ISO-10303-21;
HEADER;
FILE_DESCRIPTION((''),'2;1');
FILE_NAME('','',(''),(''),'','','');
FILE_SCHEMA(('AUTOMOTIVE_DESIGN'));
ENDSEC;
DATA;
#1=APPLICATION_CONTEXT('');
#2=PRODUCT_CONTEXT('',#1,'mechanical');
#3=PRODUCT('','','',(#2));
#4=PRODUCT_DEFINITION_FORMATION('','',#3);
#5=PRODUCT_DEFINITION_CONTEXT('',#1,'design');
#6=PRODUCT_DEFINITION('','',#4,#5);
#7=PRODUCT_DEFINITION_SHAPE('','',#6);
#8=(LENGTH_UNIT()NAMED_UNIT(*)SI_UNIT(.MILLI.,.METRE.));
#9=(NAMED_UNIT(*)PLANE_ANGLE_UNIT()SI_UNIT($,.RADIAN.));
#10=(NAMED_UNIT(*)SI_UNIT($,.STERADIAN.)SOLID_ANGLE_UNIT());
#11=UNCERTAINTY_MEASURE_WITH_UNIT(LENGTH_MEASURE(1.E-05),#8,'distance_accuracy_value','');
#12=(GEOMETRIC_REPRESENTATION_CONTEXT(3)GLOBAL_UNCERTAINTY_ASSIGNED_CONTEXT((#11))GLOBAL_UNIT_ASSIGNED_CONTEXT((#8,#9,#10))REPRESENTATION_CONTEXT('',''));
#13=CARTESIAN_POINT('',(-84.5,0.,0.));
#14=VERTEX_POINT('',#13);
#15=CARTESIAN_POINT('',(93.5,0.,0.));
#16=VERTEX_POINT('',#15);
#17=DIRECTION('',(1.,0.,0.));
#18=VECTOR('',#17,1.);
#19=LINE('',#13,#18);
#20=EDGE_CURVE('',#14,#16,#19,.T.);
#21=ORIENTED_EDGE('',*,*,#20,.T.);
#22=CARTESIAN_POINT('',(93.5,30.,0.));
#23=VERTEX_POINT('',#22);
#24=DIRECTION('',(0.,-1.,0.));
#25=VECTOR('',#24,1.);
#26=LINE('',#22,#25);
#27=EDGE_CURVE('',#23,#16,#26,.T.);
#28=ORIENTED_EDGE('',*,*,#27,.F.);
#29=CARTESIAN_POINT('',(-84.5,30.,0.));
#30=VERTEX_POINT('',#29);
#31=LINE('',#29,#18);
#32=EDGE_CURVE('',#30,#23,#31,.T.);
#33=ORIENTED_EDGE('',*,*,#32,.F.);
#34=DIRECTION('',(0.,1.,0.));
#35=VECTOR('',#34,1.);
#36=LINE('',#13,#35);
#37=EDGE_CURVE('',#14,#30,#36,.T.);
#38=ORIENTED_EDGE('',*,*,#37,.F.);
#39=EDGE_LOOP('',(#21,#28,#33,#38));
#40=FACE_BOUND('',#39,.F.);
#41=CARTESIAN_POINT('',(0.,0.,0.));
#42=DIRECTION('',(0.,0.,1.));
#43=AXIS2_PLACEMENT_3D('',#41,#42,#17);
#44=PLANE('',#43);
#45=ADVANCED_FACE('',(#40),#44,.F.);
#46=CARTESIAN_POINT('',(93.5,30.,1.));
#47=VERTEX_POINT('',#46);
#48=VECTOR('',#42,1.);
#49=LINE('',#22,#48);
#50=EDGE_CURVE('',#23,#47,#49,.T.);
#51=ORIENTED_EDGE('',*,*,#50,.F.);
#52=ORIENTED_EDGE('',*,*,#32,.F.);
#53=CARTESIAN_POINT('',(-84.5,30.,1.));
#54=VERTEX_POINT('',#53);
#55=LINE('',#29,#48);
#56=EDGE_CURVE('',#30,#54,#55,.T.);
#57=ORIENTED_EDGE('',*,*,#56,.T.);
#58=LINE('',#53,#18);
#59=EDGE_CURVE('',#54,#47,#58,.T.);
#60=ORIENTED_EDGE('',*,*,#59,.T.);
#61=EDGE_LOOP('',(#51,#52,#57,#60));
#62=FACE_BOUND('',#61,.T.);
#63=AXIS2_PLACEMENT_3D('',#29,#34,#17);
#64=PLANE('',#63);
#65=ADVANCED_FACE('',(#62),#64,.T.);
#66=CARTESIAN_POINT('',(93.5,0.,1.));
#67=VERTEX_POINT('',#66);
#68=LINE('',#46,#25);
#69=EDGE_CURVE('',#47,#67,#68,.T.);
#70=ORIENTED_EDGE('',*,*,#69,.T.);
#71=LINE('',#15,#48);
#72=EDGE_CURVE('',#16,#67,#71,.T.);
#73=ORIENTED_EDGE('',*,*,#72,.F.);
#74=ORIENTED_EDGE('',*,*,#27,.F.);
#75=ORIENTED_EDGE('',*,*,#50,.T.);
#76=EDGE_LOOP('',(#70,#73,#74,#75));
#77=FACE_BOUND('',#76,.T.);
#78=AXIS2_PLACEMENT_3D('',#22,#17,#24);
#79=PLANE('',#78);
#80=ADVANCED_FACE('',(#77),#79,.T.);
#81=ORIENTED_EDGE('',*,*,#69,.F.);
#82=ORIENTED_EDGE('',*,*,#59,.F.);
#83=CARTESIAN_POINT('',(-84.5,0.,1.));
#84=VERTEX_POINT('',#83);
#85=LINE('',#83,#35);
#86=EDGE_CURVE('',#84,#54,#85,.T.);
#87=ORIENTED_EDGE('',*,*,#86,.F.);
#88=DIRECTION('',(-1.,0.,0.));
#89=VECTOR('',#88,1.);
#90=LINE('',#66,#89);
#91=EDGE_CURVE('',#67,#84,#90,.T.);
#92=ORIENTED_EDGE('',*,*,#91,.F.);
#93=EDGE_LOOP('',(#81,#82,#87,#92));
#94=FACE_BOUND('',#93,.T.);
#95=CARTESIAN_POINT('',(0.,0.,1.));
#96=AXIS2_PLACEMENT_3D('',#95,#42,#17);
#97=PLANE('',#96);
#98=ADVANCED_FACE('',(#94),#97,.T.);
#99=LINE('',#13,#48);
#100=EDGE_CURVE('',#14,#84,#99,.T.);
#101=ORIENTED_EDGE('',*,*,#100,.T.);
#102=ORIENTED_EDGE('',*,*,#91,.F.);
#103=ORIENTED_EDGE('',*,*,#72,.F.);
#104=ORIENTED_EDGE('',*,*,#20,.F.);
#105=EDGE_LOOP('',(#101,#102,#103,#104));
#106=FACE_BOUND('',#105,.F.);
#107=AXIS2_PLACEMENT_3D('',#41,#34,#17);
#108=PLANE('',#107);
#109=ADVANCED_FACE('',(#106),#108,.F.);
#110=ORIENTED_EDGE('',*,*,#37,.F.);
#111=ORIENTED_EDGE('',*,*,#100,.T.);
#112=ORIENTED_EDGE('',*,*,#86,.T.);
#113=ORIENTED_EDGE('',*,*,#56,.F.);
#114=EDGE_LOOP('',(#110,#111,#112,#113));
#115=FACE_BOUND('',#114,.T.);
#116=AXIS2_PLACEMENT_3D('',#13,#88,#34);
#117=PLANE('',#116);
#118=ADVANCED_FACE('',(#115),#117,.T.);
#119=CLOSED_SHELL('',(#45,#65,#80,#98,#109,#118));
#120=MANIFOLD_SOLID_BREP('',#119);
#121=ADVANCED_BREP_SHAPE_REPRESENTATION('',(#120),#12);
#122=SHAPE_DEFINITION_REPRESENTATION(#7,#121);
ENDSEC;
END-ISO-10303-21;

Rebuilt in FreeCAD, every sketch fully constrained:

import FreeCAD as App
import Part
import Sketcher

V = App.Vector


def add_polygon(sketch, points):
    """Adds a closed chain of lines whose ends are joined by coincident constraints."""
    first, n = sketch.GeometryCount, len(points)
    for a, b in zip(points, points[1:] + points[:1]):
        sketch.addGeometry(Part.LineSegment(App.Vector(*a, 0), App.Vector(*b, 0)), False)
    for i in range(n):
        sketch.addConstraint(Sketcher.Constraint("Coincident", first + i, 2, first + (i + 1) % n, 1))

doc = App.newDocument("Part")
params = doc.addObject("Spreadsheet::Sheet", "Params")
for row, (alias, value) in enumerate([
    ("sketch1_width", "178 mm"),
    ("sketch1_height", "30 mm"),
    ("pad1_length", "1 mm"),
], start=1):
    params.set(f"A{row}", alias)
    params.set(f"B{row}", "=" + value)
    params.setAlias(f"B{row}", alias)

body = doc.addObject("PartDesign::Body", "Body")

sketch1 = doc.addObject("Sketcher::SketchObject", "Sketch")
body.addObject(sketch1)
sketch1.AttachmentSupport = (doc.XY_Plane, [""])
sketch1.MapMode = "FlatFace"
add_polygon(sketch1, [(93.5, 0), (93.5, 30), (-84.5, 30), (-84.5, 0)])
sketch1.addConstraint([
    Sketcher.Constraint("Vertical", 0),
    Sketcher.Constraint("Horizontal", 1),
    Sketcher.Constraint("Vertical", 2),
    Sketcher.Constraint("Horizontal", 3),
    Sketcher.Constraint("PointOnObject", 2, 2, -1),
    Sketcher.Constraint("DistanceX", 1, 2, 1, 1, 178.0),
    Sketcher.Constraint("DistanceY", 0, 1, 0, 2, 30.0),
    Sketcher.Constraint("DistanceX", 1, 2, -1, 1, 84.5),
])
sketch1.setExpression("Constraints[9]", "Params.sketch1_width")
sketch1.setExpression("Constraints[10]", "Params.sketch1_height")
pad1 = doc.addObject("PartDesign::Pad", "Pad")
body.addObject(pad1)
pad1.Profile = sketch1
pad1.setExpression("Length", "Params.pad1_length")

doc.recompute()
